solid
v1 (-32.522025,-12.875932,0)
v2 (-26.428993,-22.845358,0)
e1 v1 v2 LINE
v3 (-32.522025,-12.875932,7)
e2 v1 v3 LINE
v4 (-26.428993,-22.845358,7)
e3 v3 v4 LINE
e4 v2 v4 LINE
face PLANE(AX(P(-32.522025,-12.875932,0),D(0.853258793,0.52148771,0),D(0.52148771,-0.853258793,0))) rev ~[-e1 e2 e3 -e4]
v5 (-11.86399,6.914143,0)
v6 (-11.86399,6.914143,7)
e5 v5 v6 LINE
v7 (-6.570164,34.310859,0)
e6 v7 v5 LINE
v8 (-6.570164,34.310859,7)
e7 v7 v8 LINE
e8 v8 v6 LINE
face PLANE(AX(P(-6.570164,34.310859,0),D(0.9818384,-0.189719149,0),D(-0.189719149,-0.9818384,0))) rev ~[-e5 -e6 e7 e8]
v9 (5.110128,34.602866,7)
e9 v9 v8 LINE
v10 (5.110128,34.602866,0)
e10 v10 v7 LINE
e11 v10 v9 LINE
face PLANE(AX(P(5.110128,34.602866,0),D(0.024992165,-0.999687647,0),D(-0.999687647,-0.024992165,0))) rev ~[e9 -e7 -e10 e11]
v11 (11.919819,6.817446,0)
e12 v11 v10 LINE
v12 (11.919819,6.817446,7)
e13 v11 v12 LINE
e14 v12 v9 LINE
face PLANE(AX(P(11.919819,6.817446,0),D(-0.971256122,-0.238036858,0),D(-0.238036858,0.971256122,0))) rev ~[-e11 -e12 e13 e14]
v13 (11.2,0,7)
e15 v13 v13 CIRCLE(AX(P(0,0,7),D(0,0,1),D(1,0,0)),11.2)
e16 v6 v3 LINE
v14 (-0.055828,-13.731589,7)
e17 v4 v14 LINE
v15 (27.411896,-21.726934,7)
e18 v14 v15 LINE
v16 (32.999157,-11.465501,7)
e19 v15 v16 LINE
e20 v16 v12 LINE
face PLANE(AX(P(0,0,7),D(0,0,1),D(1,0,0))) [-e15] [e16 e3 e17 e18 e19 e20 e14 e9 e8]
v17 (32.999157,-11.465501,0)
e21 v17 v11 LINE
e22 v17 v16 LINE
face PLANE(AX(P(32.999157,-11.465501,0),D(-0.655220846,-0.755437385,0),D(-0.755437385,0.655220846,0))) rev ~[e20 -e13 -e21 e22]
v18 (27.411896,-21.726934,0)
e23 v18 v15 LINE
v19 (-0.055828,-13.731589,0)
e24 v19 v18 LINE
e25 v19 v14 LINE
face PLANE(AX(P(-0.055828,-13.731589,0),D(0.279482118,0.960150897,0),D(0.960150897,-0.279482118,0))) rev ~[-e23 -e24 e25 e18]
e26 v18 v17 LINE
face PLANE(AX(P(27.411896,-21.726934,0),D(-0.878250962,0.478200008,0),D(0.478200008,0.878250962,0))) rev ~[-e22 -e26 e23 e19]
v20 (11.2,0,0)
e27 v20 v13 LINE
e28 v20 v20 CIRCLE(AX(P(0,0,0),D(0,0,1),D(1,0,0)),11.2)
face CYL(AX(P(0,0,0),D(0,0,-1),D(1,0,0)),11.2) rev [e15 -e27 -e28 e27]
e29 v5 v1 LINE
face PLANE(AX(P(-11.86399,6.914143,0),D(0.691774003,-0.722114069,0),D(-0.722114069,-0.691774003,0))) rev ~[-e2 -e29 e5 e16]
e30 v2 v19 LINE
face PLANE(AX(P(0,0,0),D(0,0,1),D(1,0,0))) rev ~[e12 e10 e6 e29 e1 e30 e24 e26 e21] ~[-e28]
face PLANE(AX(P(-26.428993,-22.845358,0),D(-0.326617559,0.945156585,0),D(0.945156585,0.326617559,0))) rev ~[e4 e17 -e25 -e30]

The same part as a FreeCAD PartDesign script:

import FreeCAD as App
import Part
import Sketcher
from FreeCAD import Vector


def add_polygon(sketch, points):
    """Adds a closed chain of lines whose ends are joined by coincident constraints."""
    first, n = sketch.GeometryCount, len(points)
    for a, b in zip(points, points[1:] + points[:1]):
        sketch.addGeometry(Part.LineSegment(App.Vector(*a, 0), App.Vector(*b, 0)), False)
    for i in range(n):
        sketch.addConstraint(Sketcher.Constraint("Coincident", first + i, 2, first + (i + 1) % n, 1))

doc = App.newDocument("Part")
body = doc.addObject("PartDesign::Body", "Body")

sketch1 = body.newObject("Sketcher::SketchObject", "Sketch")
sketch1.AttachmentSupport = (doc.getObject("XY_Plane"), [""])
sketch1.MapMode = "FlatFace"
add_polygon(sketch1, [(11.919819, 6.817446), (5.110128, 34.602866), (-6.570164, 34.310859), (-11.86399, 6.914143), (-32.522025, -12.875932), (-26.428993, -22.845358), (-0.055828, -13.731589), (27.411896, -21.726934), (32.999157, -11.465501)])
sketch1.addGeometry(Part.Circle(Vector(0, 0, 0), Vector(0, 0, 1), 11.2), False)
sketch1.addConstraint([
    Sketcher.Constraint("Coincident", 9, 3, -1, 1),
    Sketcher.Constraint("Equal", 0, 3),
    Sketcher.Constraint("Equal", 1, 4),
    Sketcher.Constraint("Equal", 2, 5),
    Sketcher.Constraint("Equal", 3, 6),
    Sketcher.Constraint("Equal", 4, 7),
    Sketcher.Constraint("Equal", 5, 8),
    Sketcher.Constraint("Diameter", 9, 22.4),
    Sketcher.Constraint("DistanceY", 6, 2, 3, 2, 8.851002),
    Sketcher.Constraint("DistanceY", 7, 2, -1, 1, 11.465501),
    Sketcher.Constraint("DistanceY", 4, 2, 2, 2, 29.759501),
    Sketcher.Constraint("Distance", 1, 11.683942),
    Sketcher.Constraint("DistanceY", -1, 1, 1, 2, 34.310859),
    Sketcher.Constraint("DistanceX", 2, 2, -1, 1, 11.86399),
    Sketcher.Constraint("DistanceY", 4, 2, -1, 1, 22.845358),
    Sketcher.Constraint("DistanceX", 5, 2, -1, 1, 0.055828),
    Sketcher.Constraint("DistanceY", 5, 2, -1, 1, 13.731589),
    Sketcher.Constraint("DistanceX", -1, 1, 8, 2, 11.919819),
    Sketcher.Constraint("DistanceX", 3, 2, 1, 2, 25.951861),
    Sketcher.Constraint("DistanceY", 3, 2, 1, 2, 47.186791),
])
pad1 = body.newObject("PartDesign::Pad", "Pad")
pad1.Profile = sketch1
pad1.Length = 7

doc.recompute()
